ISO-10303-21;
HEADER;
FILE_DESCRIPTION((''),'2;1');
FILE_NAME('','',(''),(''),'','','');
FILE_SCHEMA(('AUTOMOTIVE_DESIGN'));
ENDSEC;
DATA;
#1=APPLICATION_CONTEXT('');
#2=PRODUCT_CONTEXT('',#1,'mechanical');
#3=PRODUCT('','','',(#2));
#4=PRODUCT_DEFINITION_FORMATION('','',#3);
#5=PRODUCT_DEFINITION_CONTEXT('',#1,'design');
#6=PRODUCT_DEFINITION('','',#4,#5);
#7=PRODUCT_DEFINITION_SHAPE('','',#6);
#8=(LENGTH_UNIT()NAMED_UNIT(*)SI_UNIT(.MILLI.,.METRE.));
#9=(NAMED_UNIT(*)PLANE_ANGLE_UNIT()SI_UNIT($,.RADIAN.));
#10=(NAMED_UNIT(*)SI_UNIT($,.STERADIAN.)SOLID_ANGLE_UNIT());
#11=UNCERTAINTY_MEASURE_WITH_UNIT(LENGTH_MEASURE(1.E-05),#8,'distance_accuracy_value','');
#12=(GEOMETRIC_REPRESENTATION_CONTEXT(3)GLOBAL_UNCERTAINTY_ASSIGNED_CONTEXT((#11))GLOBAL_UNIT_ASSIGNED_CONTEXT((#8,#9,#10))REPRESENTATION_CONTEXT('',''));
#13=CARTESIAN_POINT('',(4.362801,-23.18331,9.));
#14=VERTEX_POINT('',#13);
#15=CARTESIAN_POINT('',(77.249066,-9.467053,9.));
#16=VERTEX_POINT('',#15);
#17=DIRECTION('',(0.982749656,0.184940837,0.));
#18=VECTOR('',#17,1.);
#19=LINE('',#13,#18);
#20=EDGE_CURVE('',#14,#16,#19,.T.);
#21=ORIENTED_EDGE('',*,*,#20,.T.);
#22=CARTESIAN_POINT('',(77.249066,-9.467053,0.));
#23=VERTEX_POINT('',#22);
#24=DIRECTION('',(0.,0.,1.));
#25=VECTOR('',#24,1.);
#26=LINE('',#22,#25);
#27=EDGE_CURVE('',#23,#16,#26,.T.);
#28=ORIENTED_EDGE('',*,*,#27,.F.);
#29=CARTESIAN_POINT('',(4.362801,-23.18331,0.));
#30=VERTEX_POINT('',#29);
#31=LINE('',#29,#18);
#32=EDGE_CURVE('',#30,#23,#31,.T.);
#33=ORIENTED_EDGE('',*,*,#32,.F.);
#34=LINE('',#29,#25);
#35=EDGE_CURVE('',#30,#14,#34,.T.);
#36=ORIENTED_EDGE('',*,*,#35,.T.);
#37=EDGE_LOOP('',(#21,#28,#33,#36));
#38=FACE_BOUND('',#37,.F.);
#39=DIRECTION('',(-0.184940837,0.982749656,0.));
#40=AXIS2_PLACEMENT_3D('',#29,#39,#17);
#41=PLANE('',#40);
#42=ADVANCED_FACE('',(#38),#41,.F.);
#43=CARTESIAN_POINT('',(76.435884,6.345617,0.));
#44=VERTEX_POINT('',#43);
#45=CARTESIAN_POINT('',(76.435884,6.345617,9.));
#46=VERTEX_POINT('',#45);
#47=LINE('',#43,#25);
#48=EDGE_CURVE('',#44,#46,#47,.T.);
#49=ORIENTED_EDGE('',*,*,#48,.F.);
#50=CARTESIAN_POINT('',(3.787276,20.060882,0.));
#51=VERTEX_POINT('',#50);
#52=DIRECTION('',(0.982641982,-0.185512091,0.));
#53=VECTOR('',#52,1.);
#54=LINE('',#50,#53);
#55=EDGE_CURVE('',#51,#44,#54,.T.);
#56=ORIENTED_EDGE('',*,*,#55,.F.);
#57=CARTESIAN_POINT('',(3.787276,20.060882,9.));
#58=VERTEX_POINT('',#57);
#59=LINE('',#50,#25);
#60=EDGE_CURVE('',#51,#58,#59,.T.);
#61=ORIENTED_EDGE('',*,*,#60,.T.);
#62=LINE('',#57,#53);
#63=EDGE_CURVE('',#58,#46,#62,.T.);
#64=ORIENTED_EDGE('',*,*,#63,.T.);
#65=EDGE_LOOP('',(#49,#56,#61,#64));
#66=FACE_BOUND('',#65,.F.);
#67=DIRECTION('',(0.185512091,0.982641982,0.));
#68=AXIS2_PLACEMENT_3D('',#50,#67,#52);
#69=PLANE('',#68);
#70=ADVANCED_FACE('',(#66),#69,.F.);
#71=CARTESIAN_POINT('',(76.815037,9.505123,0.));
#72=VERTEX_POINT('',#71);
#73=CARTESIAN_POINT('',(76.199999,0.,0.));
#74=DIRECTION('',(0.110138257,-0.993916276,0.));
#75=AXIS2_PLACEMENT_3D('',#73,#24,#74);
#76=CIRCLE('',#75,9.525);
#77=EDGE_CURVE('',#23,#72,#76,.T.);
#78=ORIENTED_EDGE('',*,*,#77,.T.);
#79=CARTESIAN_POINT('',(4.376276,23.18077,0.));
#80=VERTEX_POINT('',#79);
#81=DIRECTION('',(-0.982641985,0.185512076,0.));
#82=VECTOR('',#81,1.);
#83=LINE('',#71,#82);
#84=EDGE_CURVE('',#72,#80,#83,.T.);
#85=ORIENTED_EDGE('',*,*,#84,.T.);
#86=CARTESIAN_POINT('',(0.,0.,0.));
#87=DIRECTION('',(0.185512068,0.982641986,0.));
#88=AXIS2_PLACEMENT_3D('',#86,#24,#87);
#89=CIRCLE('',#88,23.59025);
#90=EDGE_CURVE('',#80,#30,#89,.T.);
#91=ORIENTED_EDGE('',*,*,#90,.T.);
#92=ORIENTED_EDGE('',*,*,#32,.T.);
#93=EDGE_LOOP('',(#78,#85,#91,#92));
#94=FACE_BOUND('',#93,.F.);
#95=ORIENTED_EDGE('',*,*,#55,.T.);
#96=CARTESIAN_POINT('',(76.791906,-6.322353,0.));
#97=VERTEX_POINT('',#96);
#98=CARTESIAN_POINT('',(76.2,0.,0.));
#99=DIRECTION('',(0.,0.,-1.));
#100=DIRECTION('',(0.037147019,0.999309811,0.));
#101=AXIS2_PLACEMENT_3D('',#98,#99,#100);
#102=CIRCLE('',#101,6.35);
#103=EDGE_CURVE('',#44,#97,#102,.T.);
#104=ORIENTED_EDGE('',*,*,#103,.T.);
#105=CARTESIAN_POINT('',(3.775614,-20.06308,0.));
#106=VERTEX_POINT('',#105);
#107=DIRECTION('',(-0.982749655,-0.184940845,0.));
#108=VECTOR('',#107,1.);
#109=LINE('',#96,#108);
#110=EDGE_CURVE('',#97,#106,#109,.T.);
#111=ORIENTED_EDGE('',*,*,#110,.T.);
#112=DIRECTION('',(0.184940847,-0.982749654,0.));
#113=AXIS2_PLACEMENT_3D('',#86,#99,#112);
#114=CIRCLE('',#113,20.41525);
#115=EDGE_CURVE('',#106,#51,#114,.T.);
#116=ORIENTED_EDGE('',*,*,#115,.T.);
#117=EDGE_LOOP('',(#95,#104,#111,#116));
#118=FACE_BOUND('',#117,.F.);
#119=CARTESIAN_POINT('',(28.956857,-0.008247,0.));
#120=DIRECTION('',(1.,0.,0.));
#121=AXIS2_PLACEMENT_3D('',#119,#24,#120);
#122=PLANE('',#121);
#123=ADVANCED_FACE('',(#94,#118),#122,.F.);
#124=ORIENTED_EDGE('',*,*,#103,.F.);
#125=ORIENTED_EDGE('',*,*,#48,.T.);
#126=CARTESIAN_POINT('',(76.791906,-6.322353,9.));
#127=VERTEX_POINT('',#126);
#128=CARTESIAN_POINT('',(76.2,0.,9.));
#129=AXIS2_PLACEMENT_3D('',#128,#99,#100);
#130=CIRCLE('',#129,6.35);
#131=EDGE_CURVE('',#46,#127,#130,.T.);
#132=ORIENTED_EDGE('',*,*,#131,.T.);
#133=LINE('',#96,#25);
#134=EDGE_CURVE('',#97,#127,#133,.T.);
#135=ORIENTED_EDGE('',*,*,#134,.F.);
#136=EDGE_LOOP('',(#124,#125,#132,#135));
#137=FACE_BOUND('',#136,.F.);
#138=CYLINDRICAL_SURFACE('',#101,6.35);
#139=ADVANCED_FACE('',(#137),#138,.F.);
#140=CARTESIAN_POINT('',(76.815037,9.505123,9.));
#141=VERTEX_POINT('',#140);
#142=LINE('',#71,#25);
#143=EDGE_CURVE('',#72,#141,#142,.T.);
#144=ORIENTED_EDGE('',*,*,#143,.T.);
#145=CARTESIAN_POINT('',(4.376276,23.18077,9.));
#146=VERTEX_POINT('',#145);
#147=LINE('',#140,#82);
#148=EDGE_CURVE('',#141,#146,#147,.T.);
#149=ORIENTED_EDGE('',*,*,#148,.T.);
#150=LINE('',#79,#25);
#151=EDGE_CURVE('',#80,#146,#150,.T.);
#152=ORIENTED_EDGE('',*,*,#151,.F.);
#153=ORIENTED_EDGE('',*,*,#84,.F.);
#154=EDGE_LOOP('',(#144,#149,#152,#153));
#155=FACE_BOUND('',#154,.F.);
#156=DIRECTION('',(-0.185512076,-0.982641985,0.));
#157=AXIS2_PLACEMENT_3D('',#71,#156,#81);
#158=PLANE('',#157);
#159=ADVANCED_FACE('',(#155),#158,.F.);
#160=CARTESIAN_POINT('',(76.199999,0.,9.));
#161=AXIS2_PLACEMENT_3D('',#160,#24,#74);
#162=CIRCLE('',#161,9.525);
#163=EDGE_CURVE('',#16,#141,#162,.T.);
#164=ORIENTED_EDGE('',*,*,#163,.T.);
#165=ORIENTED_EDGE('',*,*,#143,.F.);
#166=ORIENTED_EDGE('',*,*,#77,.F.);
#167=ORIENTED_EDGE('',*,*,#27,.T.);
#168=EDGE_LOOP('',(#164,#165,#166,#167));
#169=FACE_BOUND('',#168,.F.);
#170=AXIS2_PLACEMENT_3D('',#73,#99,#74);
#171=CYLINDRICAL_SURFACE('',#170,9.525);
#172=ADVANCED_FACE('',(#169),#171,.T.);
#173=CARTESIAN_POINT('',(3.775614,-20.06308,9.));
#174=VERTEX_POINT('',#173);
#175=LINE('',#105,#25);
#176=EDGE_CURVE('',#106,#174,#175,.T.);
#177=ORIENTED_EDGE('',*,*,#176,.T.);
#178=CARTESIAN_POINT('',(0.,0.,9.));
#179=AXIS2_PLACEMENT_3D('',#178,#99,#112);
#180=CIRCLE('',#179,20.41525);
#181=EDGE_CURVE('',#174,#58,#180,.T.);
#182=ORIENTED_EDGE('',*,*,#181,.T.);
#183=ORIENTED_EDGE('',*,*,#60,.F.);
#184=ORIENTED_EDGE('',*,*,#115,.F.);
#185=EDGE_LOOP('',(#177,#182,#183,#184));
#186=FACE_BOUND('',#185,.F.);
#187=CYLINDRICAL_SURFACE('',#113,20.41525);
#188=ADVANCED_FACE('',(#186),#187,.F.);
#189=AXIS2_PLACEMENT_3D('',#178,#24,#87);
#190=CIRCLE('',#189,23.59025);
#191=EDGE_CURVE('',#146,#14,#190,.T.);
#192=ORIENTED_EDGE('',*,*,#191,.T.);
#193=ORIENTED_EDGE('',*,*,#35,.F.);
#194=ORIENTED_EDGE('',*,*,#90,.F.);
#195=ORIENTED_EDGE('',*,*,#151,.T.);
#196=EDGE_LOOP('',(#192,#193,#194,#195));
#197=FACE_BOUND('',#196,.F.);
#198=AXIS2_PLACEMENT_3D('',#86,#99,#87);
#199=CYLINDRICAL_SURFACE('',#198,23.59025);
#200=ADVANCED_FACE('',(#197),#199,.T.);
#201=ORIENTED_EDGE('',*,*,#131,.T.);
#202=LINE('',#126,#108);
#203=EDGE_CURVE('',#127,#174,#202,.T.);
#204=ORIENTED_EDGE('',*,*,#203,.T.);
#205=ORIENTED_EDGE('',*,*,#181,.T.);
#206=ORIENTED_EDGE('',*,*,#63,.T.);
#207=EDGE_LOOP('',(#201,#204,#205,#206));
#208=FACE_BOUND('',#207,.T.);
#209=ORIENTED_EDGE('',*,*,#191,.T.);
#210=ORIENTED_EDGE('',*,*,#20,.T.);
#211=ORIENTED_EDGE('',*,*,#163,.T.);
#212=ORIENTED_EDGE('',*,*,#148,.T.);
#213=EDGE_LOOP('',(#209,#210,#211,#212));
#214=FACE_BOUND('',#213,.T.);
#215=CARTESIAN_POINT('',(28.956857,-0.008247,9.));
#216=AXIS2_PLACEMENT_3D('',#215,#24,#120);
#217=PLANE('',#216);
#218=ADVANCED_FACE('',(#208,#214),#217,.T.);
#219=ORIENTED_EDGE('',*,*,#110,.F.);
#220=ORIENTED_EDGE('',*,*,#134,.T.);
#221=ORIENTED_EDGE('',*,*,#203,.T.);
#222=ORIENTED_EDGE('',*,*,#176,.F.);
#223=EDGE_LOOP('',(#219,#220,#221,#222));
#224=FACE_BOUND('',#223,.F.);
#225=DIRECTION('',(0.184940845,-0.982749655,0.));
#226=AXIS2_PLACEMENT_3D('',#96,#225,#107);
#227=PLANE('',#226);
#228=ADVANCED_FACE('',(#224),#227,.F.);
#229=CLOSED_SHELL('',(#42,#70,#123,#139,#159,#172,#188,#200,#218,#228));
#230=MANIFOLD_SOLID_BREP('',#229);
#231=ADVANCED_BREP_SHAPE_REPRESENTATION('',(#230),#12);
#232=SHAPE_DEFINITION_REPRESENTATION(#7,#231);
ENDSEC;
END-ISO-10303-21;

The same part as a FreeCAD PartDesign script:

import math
import FreeCAD as App
import Part
import Sketcher
Q = App.Units.Quantity

doc = App.newDocument("Part")
body = doc.addObject("PartDesign::Body", "Body")

# Sketch on XY plane
sketch1 = body.newObject("Sketcher::SketchObject", "Sketch")
sketch1.AttachmentSupport = (doc.getObject("XY_Plane"), [""])
sketch1.MapMode = "FlatFace"
sketch1.addGeometry([
    Part.ArcOfCircle(Part.Circle(App.Vector(76, 0, 0), App.Vector(0, 0, 1), 10), math.radians(-84), math.radians(86)),  # 0
    Part.LineSegment(App.Vector(77, 10, 0), App.Vector(4, 23, 0)),  # 1
    Part.ArcOfCircle(Part.Circle(App.Vector(0, 0, 0), App.Vector(0, 0, 1), 24), math.radians(79), math.radians(281)),  # 2
    Part.LineSegment(App.Vector(4, -23, 0), App.Vector(77, -9, 0)),  # 3
    Part.LineSegment(App.Vector(77, -6, 0), App.Vector(4, -20, 0)),  # 4
    Part.ArcOfCircle(Part.Circle(App.Vector(0, 0, 0), App.Vector(0, 0, 1), 20), math.radians(79), math.radians(281)),  # 5
    Part.LineSegment(App.Vector(4, 20, 0), App.Vector(76, 6, 0)),  # 6
    Part.ArcOfCircle(Part.Circle(App.Vector(76, 0, 0), App.Vector(0, 0, 1), 6), math.radians(-85), math.radians(88)),  # 7
], False)
sketch1.addConstraint([
    Sketcher.Constraint("Coincident", 0, 2, 1, 1),
    Sketcher.Constraint("Tangent", 1, 2, 2, 1),
    Sketcher.Constraint("Tangent", 2, 2, 3, 1),
    Sketcher.Constraint("Coincident", 3, 2, 0, 1),
    Sketcher.Constraint("Tangent", 4, 2, 5, 2),
    Sketcher.Constraint("Tangent", 5, 1, 6, 1),
    Sketcher.Constraint("Coincident", 6, 2, 7, 2),
    Sketcher.Constraint("Coincident", 7, 1, 4, 1),
    Sketcher.Constraint("Coincident", 2, 3, -1, 1),
    Sketcher.Constraint("Coincident", 5, 3, -1, 1),
    Sketcher.Constraint("Coincident", 7, 3, 0, 3),
    Sketcher.Constraint("PointOnObject", 0, 3, -1),
    Sketcher.Constraint("Parallel", 3, 4),
    Sketcher.Constraint("Parallel", 1, 6),
    Sketcher.Constraint("Radius", 7, Q("0.25 in")),
    Sketcher.Constraint("DistanceX", -1, 1, 0, 3, Q("3 in")),
    Sketcher.Constraint("Radius", 0, Q("0.375 in")),
    Sketcher.Constraint("Radius", 2, 23.59025),
    Sketcher.Constraint("Radius", 5, 20.41525),
    Sketcher.Constraint("DistanceY", 3, 2, 7, 1, 3.1447),
    Sketcher.Constraint("Distance", 6, 73.93192),
])
pad1 = body.newObject("PartDesign::Pad", "Pad")
pad1.Profile = sketch1
pad1.Length = 9

doc.recompute()
